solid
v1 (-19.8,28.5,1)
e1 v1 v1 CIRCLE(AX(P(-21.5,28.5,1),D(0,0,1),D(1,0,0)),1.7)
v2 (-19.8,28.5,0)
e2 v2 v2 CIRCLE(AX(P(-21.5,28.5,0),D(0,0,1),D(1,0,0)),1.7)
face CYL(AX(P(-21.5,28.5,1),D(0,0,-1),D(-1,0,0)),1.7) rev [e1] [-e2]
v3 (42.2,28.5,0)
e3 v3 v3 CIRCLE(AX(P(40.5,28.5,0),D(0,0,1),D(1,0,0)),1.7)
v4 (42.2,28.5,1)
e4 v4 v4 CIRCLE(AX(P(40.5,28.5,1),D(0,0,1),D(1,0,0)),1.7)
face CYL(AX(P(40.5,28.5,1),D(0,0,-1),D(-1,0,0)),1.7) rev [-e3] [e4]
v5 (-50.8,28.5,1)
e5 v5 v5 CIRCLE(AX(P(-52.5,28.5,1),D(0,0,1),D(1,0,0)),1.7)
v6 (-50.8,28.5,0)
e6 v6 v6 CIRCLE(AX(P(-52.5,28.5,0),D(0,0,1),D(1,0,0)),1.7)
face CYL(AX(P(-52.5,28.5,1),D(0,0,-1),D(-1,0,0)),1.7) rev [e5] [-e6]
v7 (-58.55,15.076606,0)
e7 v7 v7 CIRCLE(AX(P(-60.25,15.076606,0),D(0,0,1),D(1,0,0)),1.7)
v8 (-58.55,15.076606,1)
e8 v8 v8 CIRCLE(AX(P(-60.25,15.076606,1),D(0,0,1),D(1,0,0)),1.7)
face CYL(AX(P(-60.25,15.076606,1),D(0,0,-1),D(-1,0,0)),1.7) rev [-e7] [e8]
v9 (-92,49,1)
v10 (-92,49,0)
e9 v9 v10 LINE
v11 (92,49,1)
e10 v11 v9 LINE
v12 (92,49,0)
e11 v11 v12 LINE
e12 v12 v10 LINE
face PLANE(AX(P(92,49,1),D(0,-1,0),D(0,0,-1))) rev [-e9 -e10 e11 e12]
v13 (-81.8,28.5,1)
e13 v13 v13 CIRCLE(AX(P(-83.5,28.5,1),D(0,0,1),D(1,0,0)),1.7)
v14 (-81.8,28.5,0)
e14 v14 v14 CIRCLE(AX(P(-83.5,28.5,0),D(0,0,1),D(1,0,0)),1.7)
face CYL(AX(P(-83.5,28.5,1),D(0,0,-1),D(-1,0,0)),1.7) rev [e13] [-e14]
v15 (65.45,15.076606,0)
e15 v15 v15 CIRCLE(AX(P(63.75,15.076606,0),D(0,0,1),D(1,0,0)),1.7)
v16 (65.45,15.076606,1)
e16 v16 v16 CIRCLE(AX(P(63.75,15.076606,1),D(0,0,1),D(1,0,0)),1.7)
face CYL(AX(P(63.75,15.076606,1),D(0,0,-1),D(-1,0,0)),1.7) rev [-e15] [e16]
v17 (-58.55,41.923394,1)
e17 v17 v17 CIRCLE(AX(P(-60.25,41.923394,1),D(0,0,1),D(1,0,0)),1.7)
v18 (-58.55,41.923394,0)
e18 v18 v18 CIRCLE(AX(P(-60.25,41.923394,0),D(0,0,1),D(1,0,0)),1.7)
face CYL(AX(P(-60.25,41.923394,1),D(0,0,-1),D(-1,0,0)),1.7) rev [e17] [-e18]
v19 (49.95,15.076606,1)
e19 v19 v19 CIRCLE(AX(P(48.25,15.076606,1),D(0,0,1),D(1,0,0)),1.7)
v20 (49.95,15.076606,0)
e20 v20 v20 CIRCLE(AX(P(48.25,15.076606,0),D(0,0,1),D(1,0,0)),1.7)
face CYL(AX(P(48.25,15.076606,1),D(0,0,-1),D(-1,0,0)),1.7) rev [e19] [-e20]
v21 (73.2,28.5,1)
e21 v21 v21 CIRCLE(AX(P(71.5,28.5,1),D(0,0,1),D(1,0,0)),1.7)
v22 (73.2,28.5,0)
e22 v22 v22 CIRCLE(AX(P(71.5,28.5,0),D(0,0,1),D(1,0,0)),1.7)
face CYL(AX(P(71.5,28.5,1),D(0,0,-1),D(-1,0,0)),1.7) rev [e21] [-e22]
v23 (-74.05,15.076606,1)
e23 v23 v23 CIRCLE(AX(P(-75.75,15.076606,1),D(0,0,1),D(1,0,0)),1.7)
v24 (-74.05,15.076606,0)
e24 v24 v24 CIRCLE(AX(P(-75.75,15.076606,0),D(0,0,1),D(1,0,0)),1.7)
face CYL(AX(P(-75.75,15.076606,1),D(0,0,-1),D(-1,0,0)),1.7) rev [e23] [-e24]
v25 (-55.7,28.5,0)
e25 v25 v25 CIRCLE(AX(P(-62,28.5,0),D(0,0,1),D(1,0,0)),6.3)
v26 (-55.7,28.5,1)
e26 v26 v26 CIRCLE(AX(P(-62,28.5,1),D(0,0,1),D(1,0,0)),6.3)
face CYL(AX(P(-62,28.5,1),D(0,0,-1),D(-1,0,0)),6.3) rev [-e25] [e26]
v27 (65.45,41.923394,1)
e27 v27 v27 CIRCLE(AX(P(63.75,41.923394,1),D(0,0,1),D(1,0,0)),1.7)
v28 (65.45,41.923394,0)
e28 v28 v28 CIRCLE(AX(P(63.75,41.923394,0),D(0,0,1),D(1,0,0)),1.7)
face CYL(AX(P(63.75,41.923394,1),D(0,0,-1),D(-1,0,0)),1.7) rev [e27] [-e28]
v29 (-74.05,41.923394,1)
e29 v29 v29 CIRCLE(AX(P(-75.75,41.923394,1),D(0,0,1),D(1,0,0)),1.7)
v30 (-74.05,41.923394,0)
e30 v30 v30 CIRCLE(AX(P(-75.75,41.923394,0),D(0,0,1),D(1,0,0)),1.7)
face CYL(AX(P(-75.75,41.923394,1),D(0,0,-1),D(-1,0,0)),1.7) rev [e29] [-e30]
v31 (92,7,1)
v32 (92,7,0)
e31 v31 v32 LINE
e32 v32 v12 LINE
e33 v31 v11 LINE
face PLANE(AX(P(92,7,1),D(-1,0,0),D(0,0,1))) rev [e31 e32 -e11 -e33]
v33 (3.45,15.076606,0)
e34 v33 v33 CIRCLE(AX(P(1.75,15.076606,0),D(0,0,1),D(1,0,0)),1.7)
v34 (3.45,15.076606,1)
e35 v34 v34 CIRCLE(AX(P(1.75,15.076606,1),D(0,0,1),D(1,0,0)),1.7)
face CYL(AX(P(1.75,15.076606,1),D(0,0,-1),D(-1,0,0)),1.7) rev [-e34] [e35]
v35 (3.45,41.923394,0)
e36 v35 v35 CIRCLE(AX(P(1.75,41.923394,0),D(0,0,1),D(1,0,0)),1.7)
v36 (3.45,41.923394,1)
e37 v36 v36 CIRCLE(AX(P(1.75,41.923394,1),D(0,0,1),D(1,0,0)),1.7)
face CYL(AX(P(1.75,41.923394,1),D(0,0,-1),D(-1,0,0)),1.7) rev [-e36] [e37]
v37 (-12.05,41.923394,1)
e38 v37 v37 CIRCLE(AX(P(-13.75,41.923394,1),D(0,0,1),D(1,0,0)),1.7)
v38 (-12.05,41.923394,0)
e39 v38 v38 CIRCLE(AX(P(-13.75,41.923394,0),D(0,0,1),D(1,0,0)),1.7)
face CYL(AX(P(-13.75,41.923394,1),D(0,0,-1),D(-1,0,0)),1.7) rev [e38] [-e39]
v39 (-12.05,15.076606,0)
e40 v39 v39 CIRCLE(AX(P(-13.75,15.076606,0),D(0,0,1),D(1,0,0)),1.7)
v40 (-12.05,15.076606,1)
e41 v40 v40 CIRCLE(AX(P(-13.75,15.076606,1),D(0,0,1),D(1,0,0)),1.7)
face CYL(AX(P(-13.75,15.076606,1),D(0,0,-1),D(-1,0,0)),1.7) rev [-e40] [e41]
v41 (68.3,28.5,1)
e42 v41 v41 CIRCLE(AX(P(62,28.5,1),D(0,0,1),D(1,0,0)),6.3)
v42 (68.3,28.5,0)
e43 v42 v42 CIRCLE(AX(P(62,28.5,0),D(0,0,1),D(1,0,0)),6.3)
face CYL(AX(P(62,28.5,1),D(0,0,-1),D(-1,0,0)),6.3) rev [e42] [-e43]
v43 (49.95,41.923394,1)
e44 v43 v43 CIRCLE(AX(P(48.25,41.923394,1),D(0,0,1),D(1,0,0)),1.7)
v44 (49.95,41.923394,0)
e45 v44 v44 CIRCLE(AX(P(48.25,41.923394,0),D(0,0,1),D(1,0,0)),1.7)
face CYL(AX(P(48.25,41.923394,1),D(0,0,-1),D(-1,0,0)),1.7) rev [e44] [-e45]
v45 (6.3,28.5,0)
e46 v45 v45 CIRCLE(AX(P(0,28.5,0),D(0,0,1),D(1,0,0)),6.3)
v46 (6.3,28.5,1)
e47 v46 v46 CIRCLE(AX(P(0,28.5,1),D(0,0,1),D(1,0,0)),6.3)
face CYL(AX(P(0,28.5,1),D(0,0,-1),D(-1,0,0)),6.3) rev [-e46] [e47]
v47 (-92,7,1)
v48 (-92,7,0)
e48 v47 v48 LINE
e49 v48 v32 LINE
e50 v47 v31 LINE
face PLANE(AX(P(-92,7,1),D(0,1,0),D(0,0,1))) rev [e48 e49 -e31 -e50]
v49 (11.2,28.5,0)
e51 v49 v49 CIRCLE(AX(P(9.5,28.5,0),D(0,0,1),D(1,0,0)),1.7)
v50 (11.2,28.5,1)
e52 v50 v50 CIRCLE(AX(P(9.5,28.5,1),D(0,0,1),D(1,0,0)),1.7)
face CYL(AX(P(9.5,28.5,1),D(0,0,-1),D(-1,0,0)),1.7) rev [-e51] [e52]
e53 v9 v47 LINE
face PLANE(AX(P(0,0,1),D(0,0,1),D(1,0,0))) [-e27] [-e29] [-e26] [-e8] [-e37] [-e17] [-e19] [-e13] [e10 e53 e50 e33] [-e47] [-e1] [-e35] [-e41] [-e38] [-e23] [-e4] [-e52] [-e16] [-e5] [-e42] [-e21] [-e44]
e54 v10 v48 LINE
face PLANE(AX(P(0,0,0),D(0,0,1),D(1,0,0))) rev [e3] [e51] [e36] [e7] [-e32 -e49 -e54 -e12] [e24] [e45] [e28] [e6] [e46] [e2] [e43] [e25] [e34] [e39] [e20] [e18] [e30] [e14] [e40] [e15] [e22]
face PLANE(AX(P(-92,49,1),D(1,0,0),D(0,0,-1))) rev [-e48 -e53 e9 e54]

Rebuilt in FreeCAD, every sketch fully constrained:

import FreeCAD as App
import Part
import Sketcher
Q = App.Units.Quantity

doc = App.newDocument("Part")
body = doc.addObject("PartDesign::Body", "Body")

# Sketch on XY plane
sketch1 = body.newObject("Sketcher::SketchObject", "Sketch")
sketch1.AttachmentSupport = (doc.getObject("XY_Plane"), [""])
sketch1.MapMode = "FlatFace"
sketch1.addGeometry([
    Part.LineSegment(App.Vector(-92, 49, 0), App.Vector(-92, 7, 0)),  # 0
    Part.LineSegment(App.Vector(-92, 7, 0), App.Vector(92, 7, 0)),  # 1
    Part.LineSegment(App.Vector(92, 7, 0), App.Vector(92, 49, 0)),  # 2
    Part.LineSegment(App.Vector(92, 49, 0), App.Vector(-92, 49, 0)),  # 3
    Part.Circle(App.Vector(-75.8, 15.1, 0), App.Vector(0, 0, 1), 1.7),  # 4
    Part.Circle(App.Vector(-60.2, 15.1, 0), App.Vector(0, 0, 1), 1.7),  # 5
    Part.Circle(App.Vector(-13.8, 15.1, 0), App.Vector(0, 0, 1), 1.7),  # 6
    Part.Circle(App.Vector(1.8, 15.1, 0), App.Vector(0, 0, 1), 1.7),  # 7
    Part.Circle(App.Vector(48.2, 15.1, 0), App.Vector(0, 0, 1), 1.7),  # 8
    Part.Circle(App.Vector(63.8, 15.1, 0), App.Vector(0, 0, 1), 1.7),  # 9
    Part.Circle(App.Vector(-83.5, 28.5, 0), App.Vector(0, 0, 1), 1.7),  # 10
    Part.Circle(App.Vector(-62, 28.5, 0), App.Vector(0, 0, 1), 6.3),  # 11
    Part.Circle(App.Vector(-52.5, 28.5, 0), App.Vector(0, 0, 1), 1.7),  # 12
    Part.Circle(App.Vector(-21.5, 28.5, 0), App.Vector(0, 0, 1), 1.7),  # 13
    Part.Circle(App.Vector(-75.8, 41.9, 0), App.Vector(0, 0, 1), 1.7),  # 14
    Part.Circle(App.Vector(-60.2, 41.9, 0), App.Vector(0, 0, 1), 1.7),  # 15
    Part.Circle(App.Vector(-13.8, 41.9, 0), App.Vector(0, 0, 1), 1.7),  # 16
    Part.Circle(App.Vector(0, 28.5, 0), App.Vector(0, 0, 1), 6.3),  # 17
    Part.Circle(App.Vector(9.5, 28.5, 0), App.Vector(0, 0, 1), 1.7),  # 18
    Part.Circle(App.Vector(40.5, 28.5, 0), App.Vector(0, 0, 1), 1.7),  # 19
    Part.Circle(App.Vector(62, 28.5, 0), App.Vector(0, 0, 1), 6.3),  # 20
    Part.Circle(App.Vector(71.5, 28.5, 0), App.Vector(0, 0, 1), 1.7),  # 21
    Part.Circle(App.Vector(1.8, 41.9, 0), App.Vector(0, 0, 1), 1.7),  # 22
    Part.Circle(App.Vector(48.2, 41.9, 0), App.Vector(0, 0, 1), 1.7),  # 23
    Part.Circle(App.Vector(63.8, 41.9, 0), App.Vector(0, 0, 1), 1.7),  # 24
], False)
sketch1.addConstraint([
    Sketcher.Constraint("Coincident", 0, 2, 1, 1),
    Sketcher.Constraint("Coincident", 1, 2, 2, 1),
    Sketcher.Constraint("Coincident", 2, 2, 3, 1),
    Sketcher.Constraint("Coincident", 3, 2, 0, 1),
    Sketcher.Constraint("Vertical", 0),
    Sketcher.Constraint("Horizontal", 1),
    Sketcher.Constraint("Vertical", 2),
    Sketcher.Constraint("Horizontal", 3),
    Sketcher.Constraint("Equal", 4, 5),
    Sketcher.Constraint("Equal", 5, 6),
    Sketcher.Constraint("Equal", 6, 7),
    Sketcher.Constraint("Equal", 7, 8),
    Sketcher.Constraint("Equal", 8, 9),
    Sketcher.Constraint("Equal", 9, 10),
    Sketcher.Constraint("Equal", 10, 12),
    Sketcher.Constraint("Equal", 12, 13),
    Sketcher.Constraint("Equal", 13, 14),
    Sketcher.Constraint("Equal", 14, 15),
    Sketcher.Constraint("Equal", 15, 16),
    Sketcher.Constraint("Equal", 11, 17),
    Sketcher.Constraint("Equal", 16, 18),
    Sketcher.Constraint("Equal", 18, 19),
    Sketcher.Constraint("Equal", 17, 20),
    Sketcher.Constraint("Equal", 19, 21),
    Sketcher.Constraint("Equal", 21, 22),
    Sketcher.Constraint("Equal", 22, 23),
    Sketcher.Constraint("Equal", 23, 24),
    Sketcher.Constraint("Symmetric", 11, 3, 20, 3, -2),
    Sketcher.Constraint("PointOnObject", 17, 3, -2),
    Sketcher.Constraint("Horizontal", 4, 3, 5, 3),
    Sketcher.Constraint("Horizontal", 5, 3, 6, 3),
    Sketcher.Constraint("Horizontal", 6, 3, 7, 3),
    Sketcher.Constraint("Horizontal", 7, 3, 8, 3),
    Sketcher.Constraint("Horizontal", 8, 3, 9, 3),
    Sketcher.Constraint("Horizontal", 10, 3, 11, 3),
    Sketcher.Constraint("Horizontal", 11, 3, 12, 3),
    Sketcher.Constraint("Horizontal", 12, 3, 13, 3),
    Sketcher.Constraint("Horizontal", 14, 3, 15, 3),
    Sketcher.Constraint("Horizontal", 15, 3, 16, 3),
    Sketcher.Constraint("Horizontal", 13, 3, 17, 3),
    Sketcher.Constraint("Horizontal", 17, 3, 18, 3),
    Sketcher.Constraint("Horizontal", 18, 3, 19, 3),
    Sketcher.Constraint("Horizontal", 20, 3, 21, 3),
    Sketcher.Constraint("Horizontal", 16, 3, 22, 3),
    Sketcher.Constraint("Horizontal", 22, 3, 23, 3),
    Sketcher.Constraint("Horizontal", 23, 3, 24, 3),
    Sketcher.Constraint("Vertical", 4, 3, 14, 3),
    Sketcher.Constraint("Vertical", 5, 3, 15, 3),
    Sketcher.Constraint("Vertical", 6, 3, 16, 3),
    Sketcher.Constraint("Vertical", 7, 3, 22, 3),
    Sketcher.Constraint("Vertical", 8, 3, 23, 3),
    Sketcher.Constraint("Vertical", 9, 3, 24, 3),
    Sketcher.Constraint("Diameter", 4, Q("3.4 mm")),
    Sketcher.Constraint("Diameter", 11, Q("12.6 mm")),
    Sketcher.Constraint("DistanceX", 1, 1, 1, 2, Q("184 mm")),
    Sketcher.Constraint("DistanceY", 0, 2, 0, 1, Q("42 mm")),
    Sketcher.Constraint("DistanceX", 11, 3, -1, 1, Q("62 mm")),
    Sketcher.Constraint("DistanceX", 0, 2, -1, 1, Q("92 mm")),
    Sketcher.Constraint("DistanceY", -1, 1, 0, 2, Q("7 mm")),
    Sketcher.Constraint("DistanceX", 4, 3, 6, 3, Q("62 mm")),
    Sketcher.Constraint("DistanceX", 5, 3, 7, 3, Q("62 mm")),
    Sketcher.Constraint("DistanceX", 6, 3, 8, 3, Q("62 mm")),
    Sketcher.Constraint("DistanceX", 7, 3, 9, 3, Q("62 mm")),
    Sketcher.Constraint("DistanceX", 10, 3, 12, 3, Q("31 mm")),
    Sketcher.Constraint("DistanceX", 12, 3, 13, 3, Q("31 mm")),
    Sketcher.Constraint("DistanceX", 13, 3, 18, 3, Q("31 mm")),
    Sketcher.Constraint("DistanceX", 18, 3, 19, 3, Q("31 mm")),
    Sketcher.Constraint("DistanceX", 19, 3, 21, 3, Q("31 mm")),
    Sketcher.Constraint("DistanceX", 10, 3, -1, 1, Q("83.5 mm")),
    Sketcher.Constraint("DistanceY", -1, 1, 10, 3, Q("28.5 mm")),
    Sketcher.Constraint("DistanceX", 4, 3, 5, 3, Q("15.5 mm")),
    Sketcher.Constraint("DistanceX", 4, 3, -1, 1, Q("75.75 mm")),
    Sketcher.Constraint("DistanceY", -1, 1, 4, 3, Q("15.076606 mm")),
    Sketcher.Constraint("DistanceY", -1, 1, 14, 3, Q("41.923394 mm")),
])
pad1 = body.newObject("PartDesign::Pad", "Pad")
pad1.Profile = sketch1
pad1.Length = 1

doc.recompute()
